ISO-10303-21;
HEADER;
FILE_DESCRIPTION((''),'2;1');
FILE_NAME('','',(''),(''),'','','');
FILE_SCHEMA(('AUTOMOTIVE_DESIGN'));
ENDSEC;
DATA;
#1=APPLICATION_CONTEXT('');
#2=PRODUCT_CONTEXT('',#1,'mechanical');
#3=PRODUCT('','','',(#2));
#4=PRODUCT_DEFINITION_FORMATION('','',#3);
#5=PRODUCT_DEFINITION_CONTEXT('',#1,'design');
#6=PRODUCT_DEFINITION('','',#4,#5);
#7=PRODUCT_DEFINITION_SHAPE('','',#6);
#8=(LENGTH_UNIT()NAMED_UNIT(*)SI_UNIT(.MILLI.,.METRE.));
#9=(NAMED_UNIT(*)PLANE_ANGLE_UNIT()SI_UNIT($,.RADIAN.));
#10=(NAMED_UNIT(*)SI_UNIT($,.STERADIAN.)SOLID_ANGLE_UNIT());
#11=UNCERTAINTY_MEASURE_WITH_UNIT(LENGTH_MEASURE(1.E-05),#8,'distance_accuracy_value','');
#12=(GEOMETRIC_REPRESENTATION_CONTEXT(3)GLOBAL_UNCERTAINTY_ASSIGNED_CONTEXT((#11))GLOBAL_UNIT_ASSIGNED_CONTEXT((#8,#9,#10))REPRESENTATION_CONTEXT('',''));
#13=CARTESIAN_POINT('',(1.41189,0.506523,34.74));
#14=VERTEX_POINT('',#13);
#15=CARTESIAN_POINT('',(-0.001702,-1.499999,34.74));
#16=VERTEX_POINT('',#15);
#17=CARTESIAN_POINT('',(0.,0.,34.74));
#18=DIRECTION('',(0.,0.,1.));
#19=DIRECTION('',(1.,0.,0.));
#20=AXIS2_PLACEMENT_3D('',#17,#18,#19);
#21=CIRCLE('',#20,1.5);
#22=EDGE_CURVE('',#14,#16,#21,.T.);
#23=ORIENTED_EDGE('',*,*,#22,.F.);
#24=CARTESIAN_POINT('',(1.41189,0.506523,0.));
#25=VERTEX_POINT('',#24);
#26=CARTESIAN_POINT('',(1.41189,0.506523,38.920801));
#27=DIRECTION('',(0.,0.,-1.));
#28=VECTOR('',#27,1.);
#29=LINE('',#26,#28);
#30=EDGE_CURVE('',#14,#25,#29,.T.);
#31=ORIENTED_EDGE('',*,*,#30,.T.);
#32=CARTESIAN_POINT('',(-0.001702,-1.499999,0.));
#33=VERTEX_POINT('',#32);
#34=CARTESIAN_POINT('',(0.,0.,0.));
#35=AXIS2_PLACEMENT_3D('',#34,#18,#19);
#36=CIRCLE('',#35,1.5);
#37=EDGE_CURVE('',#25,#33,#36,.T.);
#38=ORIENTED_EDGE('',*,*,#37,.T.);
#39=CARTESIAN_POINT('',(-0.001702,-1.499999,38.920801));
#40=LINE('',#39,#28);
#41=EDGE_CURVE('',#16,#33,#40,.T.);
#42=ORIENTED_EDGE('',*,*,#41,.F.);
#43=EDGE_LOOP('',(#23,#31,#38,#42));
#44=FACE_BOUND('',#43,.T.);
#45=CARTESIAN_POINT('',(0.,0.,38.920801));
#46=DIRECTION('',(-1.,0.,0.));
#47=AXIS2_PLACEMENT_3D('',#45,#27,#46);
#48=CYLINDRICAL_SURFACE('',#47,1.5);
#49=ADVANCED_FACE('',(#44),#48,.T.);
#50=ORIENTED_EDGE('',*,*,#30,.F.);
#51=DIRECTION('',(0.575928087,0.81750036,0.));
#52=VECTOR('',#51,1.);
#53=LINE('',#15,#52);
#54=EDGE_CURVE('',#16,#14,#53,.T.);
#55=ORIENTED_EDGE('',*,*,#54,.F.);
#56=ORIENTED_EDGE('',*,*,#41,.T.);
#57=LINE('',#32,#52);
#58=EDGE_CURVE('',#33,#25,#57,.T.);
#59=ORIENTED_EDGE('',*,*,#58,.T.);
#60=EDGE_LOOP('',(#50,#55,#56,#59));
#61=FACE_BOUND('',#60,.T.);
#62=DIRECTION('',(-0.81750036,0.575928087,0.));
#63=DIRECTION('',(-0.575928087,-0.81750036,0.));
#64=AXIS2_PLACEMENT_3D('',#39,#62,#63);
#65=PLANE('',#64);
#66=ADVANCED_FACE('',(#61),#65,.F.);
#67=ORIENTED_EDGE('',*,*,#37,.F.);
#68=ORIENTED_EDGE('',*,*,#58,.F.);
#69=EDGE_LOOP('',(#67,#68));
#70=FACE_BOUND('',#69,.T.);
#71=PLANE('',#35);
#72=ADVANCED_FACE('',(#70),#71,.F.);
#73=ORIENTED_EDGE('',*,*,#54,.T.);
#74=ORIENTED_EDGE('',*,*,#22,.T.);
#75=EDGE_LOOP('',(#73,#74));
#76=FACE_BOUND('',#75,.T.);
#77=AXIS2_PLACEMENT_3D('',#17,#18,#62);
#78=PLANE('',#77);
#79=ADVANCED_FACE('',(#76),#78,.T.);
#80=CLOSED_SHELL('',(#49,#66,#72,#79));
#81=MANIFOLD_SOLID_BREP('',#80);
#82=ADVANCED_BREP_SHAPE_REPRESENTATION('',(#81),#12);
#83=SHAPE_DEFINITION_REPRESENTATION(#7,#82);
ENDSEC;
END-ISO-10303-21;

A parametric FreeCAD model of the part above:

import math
import FreeCAD as App
import Part
import Sketcher

doc = App.newDocument("Part")
body = doc.addObject("PartDesign::Body", "Body")

# Sketch on XY plane
sketch1 = doc.addObject("Sketcher::SketchObject", "Sketch")
body.addObject(sketch1)
sketch1.AttachmentSupport = (doc.XY_Plane, [""])
sketch1.MapMode = "FlatFace"
sketch1.addGeometry([
    Part.LineSegment(App.Vector(0, -1.5, 0), App.Vector(1.4, 0.5, 0)),
    Part.ArcOfCircle(Part.Circle(App.Vector(0, 0, 0), App.Vector(0, 0, 1), 1.5), math.radians(20), math.radians(270)),
], False)
sketch1.addConstraint([
    Sketcher.Constraint("Coincident", 0, 1, 1, 2),
    Sketcher.Constraint("Coincident", 1, 1, 0, 2),
    Sketcher.Constraint("Coincident", 1, 3, -1, 1),
    Sketcher.Constraint("Radius", 1, 1.5),
    Sketcher.Constraint("Distance", 0, 2.45446),
    Sketcher.Constraint("DistanceX", -1, 1, 1, 1, 1.41189),
])
pad1 = doc.addObject("PartDesign::Pad", "Pad")
body.addObject(pad1)
pad1.Profile = sketch1
pad1.Length = 34.74

doc.recompute()
